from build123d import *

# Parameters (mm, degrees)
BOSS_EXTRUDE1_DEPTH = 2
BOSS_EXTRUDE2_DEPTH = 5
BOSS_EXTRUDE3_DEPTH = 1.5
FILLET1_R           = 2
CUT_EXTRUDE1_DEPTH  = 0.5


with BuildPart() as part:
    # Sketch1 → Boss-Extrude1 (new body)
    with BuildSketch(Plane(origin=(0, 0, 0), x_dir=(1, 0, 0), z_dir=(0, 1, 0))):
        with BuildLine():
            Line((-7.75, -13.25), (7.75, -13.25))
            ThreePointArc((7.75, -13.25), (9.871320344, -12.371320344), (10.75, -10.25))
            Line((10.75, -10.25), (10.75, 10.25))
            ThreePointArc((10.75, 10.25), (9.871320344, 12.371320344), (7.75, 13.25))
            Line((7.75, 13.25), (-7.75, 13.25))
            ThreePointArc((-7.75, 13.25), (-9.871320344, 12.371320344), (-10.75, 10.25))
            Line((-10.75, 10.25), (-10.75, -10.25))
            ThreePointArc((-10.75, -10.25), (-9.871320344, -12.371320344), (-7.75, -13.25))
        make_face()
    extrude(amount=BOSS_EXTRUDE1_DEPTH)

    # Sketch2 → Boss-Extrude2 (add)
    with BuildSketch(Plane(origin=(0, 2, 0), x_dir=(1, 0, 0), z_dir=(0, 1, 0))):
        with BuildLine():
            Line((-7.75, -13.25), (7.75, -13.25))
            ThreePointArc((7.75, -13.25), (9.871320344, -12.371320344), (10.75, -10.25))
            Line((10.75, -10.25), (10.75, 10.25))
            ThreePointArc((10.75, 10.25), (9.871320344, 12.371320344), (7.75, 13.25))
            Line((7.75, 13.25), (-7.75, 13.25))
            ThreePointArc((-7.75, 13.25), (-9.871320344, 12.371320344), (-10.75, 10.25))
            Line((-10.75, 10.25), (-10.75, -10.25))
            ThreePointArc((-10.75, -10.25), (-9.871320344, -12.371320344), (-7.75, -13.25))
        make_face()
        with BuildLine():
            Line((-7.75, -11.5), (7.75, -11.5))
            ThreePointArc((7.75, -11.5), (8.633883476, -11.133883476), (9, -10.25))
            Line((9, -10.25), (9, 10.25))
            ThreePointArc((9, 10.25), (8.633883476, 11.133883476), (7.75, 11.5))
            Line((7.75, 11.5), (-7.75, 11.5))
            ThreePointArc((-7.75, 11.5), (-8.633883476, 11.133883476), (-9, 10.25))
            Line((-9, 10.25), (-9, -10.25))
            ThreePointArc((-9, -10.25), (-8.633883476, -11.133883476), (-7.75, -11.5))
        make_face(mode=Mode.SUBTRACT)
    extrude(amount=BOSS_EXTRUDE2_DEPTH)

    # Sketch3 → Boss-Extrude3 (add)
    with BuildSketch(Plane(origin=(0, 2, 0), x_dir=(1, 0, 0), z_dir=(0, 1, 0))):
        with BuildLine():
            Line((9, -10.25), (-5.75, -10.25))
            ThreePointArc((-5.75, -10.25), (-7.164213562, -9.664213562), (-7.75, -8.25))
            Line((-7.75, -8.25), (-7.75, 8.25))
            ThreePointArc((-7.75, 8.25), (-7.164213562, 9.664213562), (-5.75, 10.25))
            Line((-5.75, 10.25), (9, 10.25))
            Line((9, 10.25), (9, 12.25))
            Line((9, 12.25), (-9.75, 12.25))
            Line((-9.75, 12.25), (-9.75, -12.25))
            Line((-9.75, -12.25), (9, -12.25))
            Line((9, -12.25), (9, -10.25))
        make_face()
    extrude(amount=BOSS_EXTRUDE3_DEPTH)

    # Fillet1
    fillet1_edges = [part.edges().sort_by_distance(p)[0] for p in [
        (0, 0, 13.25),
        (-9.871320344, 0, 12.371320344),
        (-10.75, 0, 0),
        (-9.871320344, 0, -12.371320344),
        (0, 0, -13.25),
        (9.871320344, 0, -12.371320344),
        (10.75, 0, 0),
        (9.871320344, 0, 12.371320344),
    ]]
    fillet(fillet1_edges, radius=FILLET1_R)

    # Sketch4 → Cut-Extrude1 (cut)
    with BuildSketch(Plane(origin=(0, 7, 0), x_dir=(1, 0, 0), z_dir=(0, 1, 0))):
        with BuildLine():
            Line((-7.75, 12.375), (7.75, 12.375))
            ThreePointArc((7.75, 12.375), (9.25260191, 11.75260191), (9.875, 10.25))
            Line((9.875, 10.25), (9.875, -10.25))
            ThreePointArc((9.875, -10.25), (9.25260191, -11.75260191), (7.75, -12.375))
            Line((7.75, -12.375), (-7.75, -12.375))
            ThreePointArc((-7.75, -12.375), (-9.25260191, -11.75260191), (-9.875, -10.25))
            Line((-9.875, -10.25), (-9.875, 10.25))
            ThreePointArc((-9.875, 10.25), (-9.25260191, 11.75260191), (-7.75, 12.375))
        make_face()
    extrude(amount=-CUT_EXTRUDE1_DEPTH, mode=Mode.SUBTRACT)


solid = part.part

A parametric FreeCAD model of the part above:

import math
import FreeCAD as App
import Part
import Sketcher
Q = App.Units.Quantity


def edges_at(feature, points):
    """Names of the edges that pass closest to the given points."""
    edges = feature.Shape.Edges
    near = lambda p: min(range(len(edges)), key=lambda i: edges[i].distToShape(Part.Vertex(*p))[0])
    return sorted({f"Edge{near(p) + 1}" for p in points})

doc = App.newDocument("Part")
params = doc.addObject("Spreadsheet::Sheet", "Params")
for row, (alias, value) in enumerate([
    ("sketch1_radius", "3 mm"),
    ("sketch1_width", "15.5 mm"),
    ("sketch1_height", "20.5 mm"),
    ("pad1_length", "2 mm"),
    ("sketch2_radius", "3 mm"),
    ("sketch2_radius2", "1.25 mm"),
    ("sketch2_width", "15.5 mm"),
    ("sketch2_height", "20.5 mm"),
    ("pad2_length", "5 mm"),
    ("sketch3_radius", "2 mm"),
    ("sketch3_height", "2 mm"),
    ("sketch3_height2", "16.5 mm"),
    ("sketch3_width", "14.75 mm"),
    ("pad3_length", "1.5 mm"),
    ("fillet_radius", "2 mm"),
    ("sketch4_width", "15.5 mm"),
    ("sketch4_height", "20.5 mm"),
    ("pocket1_length", "0.5 mm"),
], start=1):
    params.set(f"A{row}", alias)
    params.set(f"B{row}", "=" + value)
    params.setAlias(f"B{row}", alias)

body = doc.addObject("PartDesign::Body", "Body")

sketch1 = body.newObject("Sketcher::SketchObject", "Sketch")
sketch1.AttachmentSupport = (doc.getObject("XZ_Plane"), [""])
sketch1.MapMode = "FlatFace"
sketch1.addGeometry([
    Part.LineSegment(App.Vector(-7.75, 13.25, 0), App.Vector(7.75, 13.25, 0)),
    Part.ArcOfCircle(Part.Circle(App.Vector(7.75, 10.25, 0), App.Vector(0, 0, 1), 3), math.radians(0), math.radians(90)),
    Part.LineSegment(App.Vector(10.75, 10.25, 0), App.Vector(10.75, -10.25, 0)),
    Part.ArcOfCircle(Part.Circle(App.Vector(7.75, -10.25, 0), App.Vector(0, 0, 1), 3), math.radians(-90), math.radians(0)),
    Part.LineSegment(App.Vector(7.75, -13.25, 0), App.Vector(-7.75, -13.25, 0)),
    Part.ArcOfCircle(Part.Circle(App.Vector(-7.75, -10.25, 0), App.Vector(0, 0, 1), 3), math.radians(180), math.radians(270)),
    Part.LineSegment(App.Vector(-10.75, -10.25, 0), App.Vector(-10.75, 10.25, 0)),
    Part.ArcOfCircle(Part.Circle(App.Vector(-7.75, 10.25, 0), App.Vector(0, 0, 1), 3), math.radians(90), math.radians(180)),
], False)
sketch1.addConstraint([
    Sketcher.Constraint("Tangent", 0, 2, 1, 2),
    Sketcher.Constraint("Tangent", 1, 1, 2, 1),
    Sketcher.Constraint("Tangent", 2, 2, 3, 2),
    Sketcher.Constraint("Tangent", 3, 1, 4, 1),
    Sketcher.Constraint("Tangent", 4, 2, 5, 2),
    Sketcher.Constraint("Tangent", 5, 1, 6, 1),
    Sketcher.Constraint("Tangent", 6, 2, 7, 2),
    Sketcher.Constraint("Tangent", 7, 1, 0, 1),
    Sketcher.Constraint("Horizontal", 0),
    Sketcher.Constraint("Vertical", 2),
    Sketcher.Constraint("Horizontal", 4),
    Sketcher.Constraint("Vertical", 6),
    Sketcher.Constraint("Equal", 1, 3),
    Sketcher.Constraint("Equal", 3, 5),
    Sketcher.Constraint("Equal", 5, 7),
    Sketcher.Constraint("Symmetric", 1, 3, 5, 3, -1, 1),
    Sketcher.Constraint("Radius", 1, Q("3 mm")),
    Sketcher.Constraint("DistanceX", 0, 1, 0, 2, Q("15.5 mm")),
    Sketcher.Constraint("DistanceY", 2, 2, 2, 1, Q("20.5 mm")),
])
sketch1.setExpression("Constraints[16]", "Params.sketch1_radius")
sketch1.setExpression("Constraints[17]", "Params.sketch1_width")
sketch1.setExpression("Constraints[18]", "Params.sketch1_height")
pad1 = body.newObject("PartDesign::Pad", "Pad")
pad1.Profile = sketch1
pad1.setExpression("Length", "Params.pad1_length")
pad1.Reversed = True

sketch2 = body.newObject("Sketcher::SketchObject", "Sketch001")
sketch2.AttachmentSupport = (doc.getObject("XZ_Plane"), [""])
sketch2.MapMode = "FlatFace"
sketch2.AttachmentOffset = App.Placement(App.Vector(0, 0, -2), App.Rotation())
sketch2.addGeometry([
    Part.LineSegment(App.Vector(-7.75, 13.25, 0), App.Vector(7.75, 13.25, 0)),
    Part.ArcOfCircle(Part.Circle(App.Vector(7.75, 10.25, 0), App.Vector(0, 0, 1), 3), math.radians(0), math.radians(90)),
    Part.LineSegment(App.Vector(10.75, 10.25, 0), App.Vector(10.75, -10.25, 0)),
    Part.ArcOfCircle(Part.Circle(App.Vector(7.75, -10.25, 0), App.Vector(0, 0, 1), 3), math.radians(-90), math.radians(0)),
    Part.LineSegment(App.Vector(7.75, -13.25, 0), App.Vector(-7.75, -13.25, 0)),
    Part.ArcOfCircle(Part.Circle(App.Vector(-7.75, -10.25, 0), App.Vector(0, 0, 1), 3), math.radians(180), math.radians(270)),
    Part.LineSegment(App.Vector(-10.75, -10.25, 0), App.Vector(-10.75, 10.25, 0)),
    Part.ArcOfCircle(Part.Circle(App.Vector(-7.75, 10.25, 0), App.Vector(0, 0, 1), 3), math.radians(90), math.radians(180)),
    Part.LineSegment(App.Vector(7.75, 11.5, 0), App.Vector(-7.75, 11.5, 0)),
    Part.ArcOfCircle(Part.Circle(App.Vector(-7.75, 10.25, 0), App.Vector(0, 0, 1), 1.25), math.radians(90), math.radians(180)),
    Part.LineSegment(App.Vector(-9, 10.25, 0), App.Vector(-9, -10.25, 0)),
    Part.ArcOfCircle(Part.Circle(App.Vector(-7.75, -10.25, 0), App.Vector(0, 0, 1), 1.25), math.radians(-180), math.radians(-90)),
    Part.LineSegment(App.Vector(-7.75, -11.5, 0), App.Vector(7.75, -11.5, 0)),
    Part.ArcOfCircle(Part.Circle(App.Vector(7.75, -10.25, 0), App.Vector(0, 0, 1), 1.25), math.radians(-90), math.radians(0)),
    Part.LineSegment(App.Vector(9, -10.25, 0), App.Vector(9, 10.25, 0)),
    Part.ArcOfCircle(Part.Circle(App.Vector(7.75, 10.25, 0), App.Vector(0, 0, 1), 1.25), math.radians(0), math.radians(90)),
], False)
sketch2.addConstraint([
    Sketcher.Constraint("Tangent", 0, 2, 1, 2),
    Sketcher.Constraint("Tangent", 1, 1, 2, 1),
    Sketcher.Constraint("Tangent", 2, 2, 3, 2),
    Sketcher.Constraint("Tangent", 3, 1, 4, 1),
    Sketcher.Constraint("Tangent", 4, 2, 5, 2),
    Sketcher.Constraint("Tangent", 5, 1, 6, 1),
    Sketcher.Constraint("Tangent", 6, 2, 7, 2),
    Sketcher.Constraint("Tangent", 7, 1, 0, 1),
    Sketcher.Constraint("Tangent", 8, 2, 9, 1),
    Sketcher.Constraint("Tangent", 9, 2, 10, 1),
    Sketcher.Constraint("Tangent", 10, 2, 11, 1),
    Sketcher.Constraint("Tangent", 11, 2, 12, 1),
    Sketcher.Constraint("Tangent", 12, 2, 13, 1),
    Sketcher.Constraint("Tangent", 13, 2, 14, 1),
    Sketcher.Constraint("Tangent", 14, 2, 15, 1),
    Sketcher.Constraint("Tangent", 15, 2, 8, 1),
    Sketcher.Constraint("Horizontal", 0),
    Sketcher.Constraint("Vertical", 2),
    Sketcher.Constraint("Horizontal", 4),
    Sketcher.Constraint("Vertical", 6),
    Sketcher.Constraint("Horizontal", 8),
    Sketcher.Constraint("Vertical", 10),
    Sketcher.Constraint("Horizontal", 12),
    Sketcher.Constraint("Vertical", 14),
    Sketcher.Constraint("Coincident", 9, 3, 7, 3),
    Sketcher.Constraint("Coincident", 11, 3, 5, 3),
    Sketcher.Constraint("Coincident", 13, 3, 3, 3),
    Sketcher.Constraint("Equal", 1, 3),
    Sketcher.Constraint("Equal", 3, 5),
    Sketcher.Constraint("Equal", 5, 7),
    Sketcher.Constraint("Equal", 13, 15),
    Sketcher.Constraint("Symmetric", 1, 3, 5, 3, -1, 1),
    Sketcher.Constraint("Radius", 1, Q("3 mm")),
    Sketcher.Constraint("Radius", 9, Q("1.25 mm")),
    Sketcher.Constraint("DistanceX", 0, 1, 0, 2, Q("15.5 mm")),
    Sketcher.Constraint("DistanceY", 2, 2, 2, 1, Q("20.5 mm")),
])
sketch2.setExpression("Constraints[32]", "Params.sketch2_radius")
sketch2.setExpression("Constraints[33]", "Params.sketch2_radius2")
sketch2.setExpression("Constraints[34]", "Params.sketch2_width")
sketch2.setExpression("Constraints[35]", "Params.sketch2_height")
pad2 = body.newObject("PartDesign::Pad", "Pad001")
pad2.Profile = sketch2
pad2.setExpression("Length", "Params.pad2_length")
pad2.Reversed = True

sketch3 = body.newObject("Sketcher::SketchObject", "Sketch002")
sketch3.AttachmentSupport = (doc.getObject("XZ_Plane"), [""])
sketch3.MapMode = "FlatFace"
sketch3.AttachmentOffset = App.Placement(App.Vector(0, 0, -2), App.Rotation())
sketch3.addGeometry([
    Part.LineSegment(App.Vector(9, 10.25, 0), App.Vector(-5.75, 10.25, 0)),
    Part.ArcOfCircle(Part.Circle(App.Vector(-5.75, 8.25, 0), App.Vector(0, 0, 1), 2), math.radians(90), math.radians(180)),
    Part.LineSegment(App.Vector(-7.75, 8.25, 0), App.Vector(-7.75, -8.25, 0)),
    Part.ArcOfCircle(Part.Circle(App.Vector(-5.75, -8.25, 0), App.Vector(0, 0, 1), 2), math.radians(-180), math.radians(-90)),
    Part.LineSegment(App.Vector(-5.75, -10.25, 0), App.Vector(9, -10.25, 0)),
    Part.LineSegment(App.Vector(9, -10.25, 0), App.Vector(9, -12.25, 0)),
    Part.LineSegment(App.Vector(9, -12.25, 0), App.Vector(-9.75, -12.25, 0)),
    Part.LineSegment(App.Vector(-9.75, -12.25, 0), App.Vector(-9.75, 12.25, 0)),
    Part.LineSegment(App.Vector(-9.75, 12.25, 0), App.Vector(9, 12.25, 0)),
    Part.LineSegment(App.Vector(9, 12.25, 0), App.Vector(9, 10.25, 0)),
], False)
sketch3.addConstraint([
    Sketcher.Constraint("Tangent", 0, 2, 1, 1),
    Sketcher.Constraint("Tangent", 1, 2, 2, 1),
    Sketcher.Constraint("Tangent", 2, 2, 3, 1),
    Sketcher.Constraint("Tangent", 3, 2, 4, 1),
    Sketcher.Constraint("Coincident", 4, 2, 5, 1),
    Sketcher.Constraint("Coincident", 5, 2, 6, 1),
    Sketcher.Constraint("Coincident", 6, 2, 7, 1),
    Sketcher.Constraint("Coincident", 7, 2, 8, 1),
    Sketcher.Constraint("Coincident", 8, 2, 9, 1),
    Sketcher.Constraint("Coincident", 9, 2, 0, 1),
    Sketcher.Constraint("Horizontal", 0),
    Sketcher.Constraint("Vertical", 2),
    Sketcher.Constraint("Horizontal", 4),
    Sketcher.Constraint("Vertical", 5),
    Sketcher.Constraint("Horizontal", 6),
    Sketcher.Constraint("Vertical", 7),
    Sketcher.Constraint("Horizontal", 8),
    Sketcher.Constraint("Vertical", 9),
    Sketcher.Constraint("Equal", 1, 3),
    Sketcher.Constraint("Symmetric", 5, 2, 8, 2, -1),
    Sketcher.Constraint("Equal", 5, 9),
    Sketcher.Constraint("Radius", 1, Q("2 mm")),
    Sketcher.Constraint("DistanceY", 5, 2, 5, 1, Q("2 mm")),
    Sketcher.Constraint("DistanceY", 2, 2, 2, 1, Q("16.5 mm")),
    Sketcher.Constraint("DistanceX", -1, 1, 4, 2, Q("9 mm")),
    Sketcher.Constraint("DistanceX", 6, 2, 2, 2, Q("2 mm")),
    Sketcher.Constraint("DistanceX", 0, 2, 0, 1, Q("14.75 mm")),
])
sketch3.setExpression("Constraints[21]", "Params.sketch3_radius")
sketch3.setExpression("Constraints[22]", "Params.sketch3_height")
sketch3.setExpression("Constraints[23]", "Params.sketch3_height2")
sketch3.setExpression("Constraints[26]", "Params.sketch3_width")
pad3 = body.newObject("PartDesign::Pad", "Pad002")
pad3.Profile = sketch3
pad3.setExpression("Length", "Params.pad3_length")
pad3.Reversed = True
doc.recompute()

fillet = body.newObject("PartDesign::Fillet", "Fillet")
fillet.Base = (pad3, edges_at(pad3, [
    (0, 0, 13.25),
    (-9.871, 0, 12.371),
    (-10.75, 0, 0),
    (-9.871, 0, -12.371),
    (0, 0, -13.25),
    (9.871, 0, -12.371),
    (10.75, 0, 0),
    (9.871, 0, 12.371),
]))
fillet.setExpression("Radius", "Params.fillet_radius")

sketch4 = body.newObject("Sketcher::SketchObject", "Sketch003")
sketch4.AttachmentSupport = (doc.getObject("XZ_Plane"), [""])
sketch4.MapMode = "FlatFace"
sketch4.AttachmentOffset = App.Placement(App.Vector(0, 0, -7), App.Rotation())
sketch4.addGeometry([
    Part.LineSegment(App.Vector(7.75, -12.375, 0), App.Vector(-7.75, -12.375, 0)),
    Part.ArcOfCircle(Part.Circle(App.Vector(-7.75, -10.25, 0), App.Vector(0, 0, 1), 2.125), math.radians(180), math.radians(270)),
    Part.LineSegment(App.Vector(-9.875, -10.25, 0), App.Vector(-9.875, 10.25, 0)),
    Part.ArcOfCircle(Part.Circle(App.Vector(-7.75, 10.25, 0), App.Vector(0, 0, 1), 2.125), math.radians(90), math.radians(180)),
    Part.LineSegment(App.Vector(-7.75, 12.375, 0), App.Vector(7.75, 12.375, 0)),
    Part.ArcOfCircle(Part.Circle(App.Vector(7.75, 10.25, 0), App.Vector(0, 0, 1), 2.125), math.radians(0), math.radians(90)),
    Part.LineSegment(App.Vector(9.875, 10.25, 0), App.Vector(9.875, -10.25, 0)),
    Part.ArcOfCircle(Part.Circle(App.Vector(7.75, -10.25, 0), App.Vector(0, 0, 1), 2.125), math.radians(-90), math.radians(0)),
], False)
sketch4.addConstraint([
    Sketcher.Constraint("Tangent", 0, 2, 1, 2),
    Sketcher.Constraint("Tangent", 1, 1, 2, 1),
    Sketcher.Constraint("Tangent", 2, 2, 3, 2),
    Sketcher.Constraint("Tangent", 3, 1, 4, 1),
    Sketcher.Constraint("Tangent", 4, 2, 5, 2),
    Sketcher.Constraint("Tangent", 5, 1, 6, 1),
    Sketcher.Constraint("Tangent", 6, 2, 7, 2),
    Sketcher.Constraint("Tangent", 7, 1, 0, 1),
    Sketcher.Constraint("Horizontal", 0),
    Sketcher.Constraint("Vertical", 2),
    Sketcher.Constraint("Horizontal", 4),
    Sketcher.Constraint("Vertical", 6),
    Sketcher.Constraint("Equal", 1, 3),
    Sketcher.Constraint("Equal", 3, 5),
    Sketcher.Constraint("Equal", 5, 7),
    Sketcher.Constraint("Symmetric", 1, 3, 5, 3, -1, 1),
    Sketcher.Constraint("DistanceX", 0, 2, 0, 1, Q("15.5 mm")),
    Sketcher.Constraint("DistanceY", 2, 1, 2, 2, Q("20.5 mm")),
    Sketcher.Constraint("Radius", 1, Q("2.125 mm")),
])
sketch4.setExpression("Constraints[16]", "Params.sketch4_width")
sketch4.setExpression("Constraints[17]", "Params.sketch4_height")
pocket1 = body.newObject("PartDesign::Pocket", "Pocket")
pocket1.Profile = sketch4
pocket1.setExpression("Length", "Params.pocket1_length")
pocket1.Reversed = True

doc.recompute()
